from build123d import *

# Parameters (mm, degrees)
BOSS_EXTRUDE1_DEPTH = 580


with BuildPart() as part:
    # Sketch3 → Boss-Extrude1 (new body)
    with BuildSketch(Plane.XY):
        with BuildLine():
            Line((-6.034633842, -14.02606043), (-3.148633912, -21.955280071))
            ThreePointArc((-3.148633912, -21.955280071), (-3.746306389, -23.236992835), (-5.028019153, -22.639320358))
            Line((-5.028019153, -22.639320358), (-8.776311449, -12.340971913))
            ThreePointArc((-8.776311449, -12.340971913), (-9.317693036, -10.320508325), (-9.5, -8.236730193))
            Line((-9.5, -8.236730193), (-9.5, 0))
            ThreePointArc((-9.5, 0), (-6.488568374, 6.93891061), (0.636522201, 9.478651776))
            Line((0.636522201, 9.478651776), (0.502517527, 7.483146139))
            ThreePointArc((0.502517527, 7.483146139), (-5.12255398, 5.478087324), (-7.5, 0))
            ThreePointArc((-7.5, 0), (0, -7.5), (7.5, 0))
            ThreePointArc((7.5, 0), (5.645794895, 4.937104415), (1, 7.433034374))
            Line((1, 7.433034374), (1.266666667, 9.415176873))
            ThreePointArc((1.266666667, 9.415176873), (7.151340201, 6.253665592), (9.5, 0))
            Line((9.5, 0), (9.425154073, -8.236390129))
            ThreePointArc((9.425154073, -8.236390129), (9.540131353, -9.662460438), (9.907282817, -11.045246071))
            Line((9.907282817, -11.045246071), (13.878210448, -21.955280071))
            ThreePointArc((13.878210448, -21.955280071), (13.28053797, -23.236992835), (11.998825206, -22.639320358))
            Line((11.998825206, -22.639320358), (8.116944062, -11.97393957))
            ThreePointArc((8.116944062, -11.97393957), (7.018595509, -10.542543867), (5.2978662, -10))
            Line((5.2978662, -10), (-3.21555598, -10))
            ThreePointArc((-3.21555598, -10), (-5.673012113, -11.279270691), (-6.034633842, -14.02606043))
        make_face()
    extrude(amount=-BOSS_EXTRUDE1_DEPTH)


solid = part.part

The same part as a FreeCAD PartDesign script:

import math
import FreeCAD as App
import Part
import Sketcher
Q = App.Units.Quantity

doc = App.newDocument("Part")
body = doc.addObject("PartDesign::Body", "Body")

sketch1 = body.newObject("Sketcher::SketchObject", "Sketch")
sketch1.AttachmentSupport = (doc.getObject("XY_Plane"), [""])
sketch1.MapMode = "FlatFace"
sketch1.addGeometry([
    Part.LineSegment(App.Vector(-3.1, -22, 0), App.Vector(-6, -14, 0)),
    Part.ArcOfCircle(Part.Circle(App.Vector(-3.2, -13, 0), App.Vector(0, 0, 1), 3), math.radians(90), math.radians(200)),
    Part.LineSegment(App.Vector(-3.2, -10, 0), App.Vector(5.3, -10, 0)),
    Part.ArcOfCircle(Part.Circle(App.Vector(5.3, -13, 0), App.Vector(0, 0, 1), 3), math.radians(20), math.radians(90)),
    Part.LineSegment(App.Vector(8.1, -12, 0), App.Vector(12, -22.6, 0)),
    Part.ArcOfCircle(Part.Circle(App.Vector(12.9, -22.3, 0), App.Vector(0, 0, 1), 1), math.radians(-160), math.radians(20)),
    Part.LineSegment(App.Vector(13.9, -22, 0), App.Vector(9.9, -11, 0)),
    Part.ArcOfCircle(Part.Circle(App.Vector(17.4, -8.3, 0), App.Vector(0, 0, 1), 8), math.radians(179), math.radians(200)),
    Part.LineSegment(App.Vector(9.4, -8.2, 0), App.Vector(9.5, 0, 0)),
    Part.ArcOfCircle(Part.Circle(App.Vector(0, 0, 0), App.Vector(0, 0, 1), 9.5), math.radians(0), math.radians(82)),
    Part.LineSegment(App.Vector(1.3, 9.4, 0), App.Vector(1, 7.4, 0)),
    Part.ArcOfCircle(Part.Circle(App.Vector(0, 0, 0), App.Vector(0, 0, 1), 7.5), math.radians(0), math.radians(82)),
    Part.ArcOfCircle(Part.Circle(App.Vector(0, 0, 0), App.Vector(0, 0, 1), 7.5), math.radians(180), math.radians(360)),
    Part.ArcOfCircle(Part.Circle(App.Vector(0, 0, 0), App.Vector(0, 0, 1), 7.5), math.radians(86), math.radians(180)),
    Part.LineSegment(App.Vector(0.5, 7.5, 0), App.Vector(0.6, 9.5, 0)),
    Part.ArcOfCircle(Part.Circle(App.Vector(0, 0, 0), App.Vector(0, 0, 1), 9.5), math.radians(86), math.radians(180)),
    Part.LineSegment(App.Vector(-9.5, 0, 0), App.Vector(-9.5, -8.2, 0)),
    Part.ArcOfCircle(Part.Circle(App.Vector(2.5, -8.2, 0), App.Vector(0, 0, 1), 12), math.radians(-180), math.radians(-160)),
    Part.LineSegment(App.Vector(-8.8, -12.3, 0), App.Vector(-5, -22.6, 0)),
    Part.ArcOfCircle(Part.Circle(App.Vector(-4.1, -22.3, 0), App.Vector(0, 0, 1), 1), math.radians(-160), math.radians(20)),
], False)
sketch1.addConstraint([
    Sketcher.Constraint("Tangent", 0, 2, 1, 2),
    Sketcher.Constraint("Tangent", 1, 1, 2, 1),
    Sketcher.Constraint("Tangent", 2, 2, 3, 2),
    Sketcher.Constraint("Tangent", 3, 1, 4, 1),
    Sketcher.Constraint("Tangent", 4, 2, 5, 1),
    Sketcher.Constraint("Tangent", 5, 2, 6, 1),
    Sketcher.Constraint("Tangent", 6, 2, 7, 2),
    Sketcher.Constraint("Tangent", 7, 1, 8, 1),
    Sketcher.Constraint("Coincident", 8, 2, 9, 1),
    Sketcher.Constraint("Coincident", 9, 2, 10, 1),
    Sketcher.Constraint("Coincident", 10, 2, 11, 2),
    Sketcher.Constraint("Tangent", 11, 1, 12, 2),
    Sketcher.Constraint("Tangent", 12, 1, 13, 2),
    Sketcher.Constraint("Coincident", 13, 1, 14, 1),
    Sketcher.Constraint("Coincident", 14, 2, 15, 1),
    Sketcher.Constraint("Tangent", 15, 2, 16, 1),
    Sketcher.Constraint("Tangent", 16, 2, 17, 1),
    Sketcher.Constraint("Tangent", 17, 2, 18, 1),
    Sketcher.Constraint("Tangent", 18, 2, 19, 1),
    Sketcher.Constraint("Tangent", 19, 2, 0, 1),
    Sketcher.Constraint("Horizontal", 2),
    Sketcher.Constraint("Vertical", 16),
    Sketcher.Constraint("Coincident", 9, 3, -1, 1),
    Sketcher.Constraint("Coincident", 11, 3, -1, 1),
    Sketcher.Constraint("Coincident", 15, 3, -1, 1),
    Sketcher.Constraint("Equal", 1, 3),
    Sketcher.Constraint("Equal", 11, 12),
    Sketcher.Constraint("Equal", 12, 13),
    Sketcher.Constraint("Equal", 9, 15),
    Sketcher.Constraint("Equal", 5, 19),
    Sketcher.Constraint("PointOnObject", 8, 2, -1),
    Sketcher.Constraint("PointOnObject", 11, 1, -1),
    Sketcher.Constraint("PointOnObject", 12, 1, -1),
    Sketcher.Constraint("Parallel", 0, 4),
    Sketcher.Constraint("Parallel", 4, 6),
    Sketcher.Constraint("Parallel", 6, 18),
    Sketcher.Constraint("Horizontal", 5, 3, 19, 3),
    Sketcher.Constraint("Radius", 1, Q("3 mm")),
    Sketcher.Constraint("Radius", 5, Q("1 mm")),
    Sketcher.Constraint("Radius", 7, Q("8 mm")),
    Sketcher.Constraint("Radius", 17, Q("12 mm")),
    Sketcher.Constraint("Radius", 9, Q("9.5 mm")),
    Sketcher.Constraint("Radius", 11, Q("7.5 mm")),
    Sketcher.Constraint("Angle", 0, Q("110 deg")),
    Sketcher.Constraint("DistanceY", 1, 3, -1, 1, Q("13 mm")),
    Sketcher.Constraint("DistanceX", -1, 1, 10, 2, Q("1 mm")),
    Sketcher.Constraint("DistanceX", 4, 2, 7, 3, Q("5.425999 mm")),
    Sketcher.Constraint("DistanceX", 0, 2, 19, 2, Q("2.886 mm")),
    Sketcher.Constraint("DistanceY", 16, 2, 16, 1, Q("8.23673 mm")),
    Sketcher.Constraint("DistanceX", 0, 2, 3, 3, Q("11.3325 mm")),
    Sketcher.Constraint("DistanceY", -1, 1, 14, 2, Q("9.478652 mm")),
    Sketcher.Constraint("DistanceY", 10, 2, 13, 1, Q("0.050112 mm")),
    Sketcher.Constraint("DistanceX", 13, 1, 9, 2, Q("0.764149 mm")),
])
pad1 = body.newObject("PartDesign::Pad", "Pad")
pad1.Profile = sketch1
pad1.Length = 580
pad1.Reversed = True

doc.recompute()
